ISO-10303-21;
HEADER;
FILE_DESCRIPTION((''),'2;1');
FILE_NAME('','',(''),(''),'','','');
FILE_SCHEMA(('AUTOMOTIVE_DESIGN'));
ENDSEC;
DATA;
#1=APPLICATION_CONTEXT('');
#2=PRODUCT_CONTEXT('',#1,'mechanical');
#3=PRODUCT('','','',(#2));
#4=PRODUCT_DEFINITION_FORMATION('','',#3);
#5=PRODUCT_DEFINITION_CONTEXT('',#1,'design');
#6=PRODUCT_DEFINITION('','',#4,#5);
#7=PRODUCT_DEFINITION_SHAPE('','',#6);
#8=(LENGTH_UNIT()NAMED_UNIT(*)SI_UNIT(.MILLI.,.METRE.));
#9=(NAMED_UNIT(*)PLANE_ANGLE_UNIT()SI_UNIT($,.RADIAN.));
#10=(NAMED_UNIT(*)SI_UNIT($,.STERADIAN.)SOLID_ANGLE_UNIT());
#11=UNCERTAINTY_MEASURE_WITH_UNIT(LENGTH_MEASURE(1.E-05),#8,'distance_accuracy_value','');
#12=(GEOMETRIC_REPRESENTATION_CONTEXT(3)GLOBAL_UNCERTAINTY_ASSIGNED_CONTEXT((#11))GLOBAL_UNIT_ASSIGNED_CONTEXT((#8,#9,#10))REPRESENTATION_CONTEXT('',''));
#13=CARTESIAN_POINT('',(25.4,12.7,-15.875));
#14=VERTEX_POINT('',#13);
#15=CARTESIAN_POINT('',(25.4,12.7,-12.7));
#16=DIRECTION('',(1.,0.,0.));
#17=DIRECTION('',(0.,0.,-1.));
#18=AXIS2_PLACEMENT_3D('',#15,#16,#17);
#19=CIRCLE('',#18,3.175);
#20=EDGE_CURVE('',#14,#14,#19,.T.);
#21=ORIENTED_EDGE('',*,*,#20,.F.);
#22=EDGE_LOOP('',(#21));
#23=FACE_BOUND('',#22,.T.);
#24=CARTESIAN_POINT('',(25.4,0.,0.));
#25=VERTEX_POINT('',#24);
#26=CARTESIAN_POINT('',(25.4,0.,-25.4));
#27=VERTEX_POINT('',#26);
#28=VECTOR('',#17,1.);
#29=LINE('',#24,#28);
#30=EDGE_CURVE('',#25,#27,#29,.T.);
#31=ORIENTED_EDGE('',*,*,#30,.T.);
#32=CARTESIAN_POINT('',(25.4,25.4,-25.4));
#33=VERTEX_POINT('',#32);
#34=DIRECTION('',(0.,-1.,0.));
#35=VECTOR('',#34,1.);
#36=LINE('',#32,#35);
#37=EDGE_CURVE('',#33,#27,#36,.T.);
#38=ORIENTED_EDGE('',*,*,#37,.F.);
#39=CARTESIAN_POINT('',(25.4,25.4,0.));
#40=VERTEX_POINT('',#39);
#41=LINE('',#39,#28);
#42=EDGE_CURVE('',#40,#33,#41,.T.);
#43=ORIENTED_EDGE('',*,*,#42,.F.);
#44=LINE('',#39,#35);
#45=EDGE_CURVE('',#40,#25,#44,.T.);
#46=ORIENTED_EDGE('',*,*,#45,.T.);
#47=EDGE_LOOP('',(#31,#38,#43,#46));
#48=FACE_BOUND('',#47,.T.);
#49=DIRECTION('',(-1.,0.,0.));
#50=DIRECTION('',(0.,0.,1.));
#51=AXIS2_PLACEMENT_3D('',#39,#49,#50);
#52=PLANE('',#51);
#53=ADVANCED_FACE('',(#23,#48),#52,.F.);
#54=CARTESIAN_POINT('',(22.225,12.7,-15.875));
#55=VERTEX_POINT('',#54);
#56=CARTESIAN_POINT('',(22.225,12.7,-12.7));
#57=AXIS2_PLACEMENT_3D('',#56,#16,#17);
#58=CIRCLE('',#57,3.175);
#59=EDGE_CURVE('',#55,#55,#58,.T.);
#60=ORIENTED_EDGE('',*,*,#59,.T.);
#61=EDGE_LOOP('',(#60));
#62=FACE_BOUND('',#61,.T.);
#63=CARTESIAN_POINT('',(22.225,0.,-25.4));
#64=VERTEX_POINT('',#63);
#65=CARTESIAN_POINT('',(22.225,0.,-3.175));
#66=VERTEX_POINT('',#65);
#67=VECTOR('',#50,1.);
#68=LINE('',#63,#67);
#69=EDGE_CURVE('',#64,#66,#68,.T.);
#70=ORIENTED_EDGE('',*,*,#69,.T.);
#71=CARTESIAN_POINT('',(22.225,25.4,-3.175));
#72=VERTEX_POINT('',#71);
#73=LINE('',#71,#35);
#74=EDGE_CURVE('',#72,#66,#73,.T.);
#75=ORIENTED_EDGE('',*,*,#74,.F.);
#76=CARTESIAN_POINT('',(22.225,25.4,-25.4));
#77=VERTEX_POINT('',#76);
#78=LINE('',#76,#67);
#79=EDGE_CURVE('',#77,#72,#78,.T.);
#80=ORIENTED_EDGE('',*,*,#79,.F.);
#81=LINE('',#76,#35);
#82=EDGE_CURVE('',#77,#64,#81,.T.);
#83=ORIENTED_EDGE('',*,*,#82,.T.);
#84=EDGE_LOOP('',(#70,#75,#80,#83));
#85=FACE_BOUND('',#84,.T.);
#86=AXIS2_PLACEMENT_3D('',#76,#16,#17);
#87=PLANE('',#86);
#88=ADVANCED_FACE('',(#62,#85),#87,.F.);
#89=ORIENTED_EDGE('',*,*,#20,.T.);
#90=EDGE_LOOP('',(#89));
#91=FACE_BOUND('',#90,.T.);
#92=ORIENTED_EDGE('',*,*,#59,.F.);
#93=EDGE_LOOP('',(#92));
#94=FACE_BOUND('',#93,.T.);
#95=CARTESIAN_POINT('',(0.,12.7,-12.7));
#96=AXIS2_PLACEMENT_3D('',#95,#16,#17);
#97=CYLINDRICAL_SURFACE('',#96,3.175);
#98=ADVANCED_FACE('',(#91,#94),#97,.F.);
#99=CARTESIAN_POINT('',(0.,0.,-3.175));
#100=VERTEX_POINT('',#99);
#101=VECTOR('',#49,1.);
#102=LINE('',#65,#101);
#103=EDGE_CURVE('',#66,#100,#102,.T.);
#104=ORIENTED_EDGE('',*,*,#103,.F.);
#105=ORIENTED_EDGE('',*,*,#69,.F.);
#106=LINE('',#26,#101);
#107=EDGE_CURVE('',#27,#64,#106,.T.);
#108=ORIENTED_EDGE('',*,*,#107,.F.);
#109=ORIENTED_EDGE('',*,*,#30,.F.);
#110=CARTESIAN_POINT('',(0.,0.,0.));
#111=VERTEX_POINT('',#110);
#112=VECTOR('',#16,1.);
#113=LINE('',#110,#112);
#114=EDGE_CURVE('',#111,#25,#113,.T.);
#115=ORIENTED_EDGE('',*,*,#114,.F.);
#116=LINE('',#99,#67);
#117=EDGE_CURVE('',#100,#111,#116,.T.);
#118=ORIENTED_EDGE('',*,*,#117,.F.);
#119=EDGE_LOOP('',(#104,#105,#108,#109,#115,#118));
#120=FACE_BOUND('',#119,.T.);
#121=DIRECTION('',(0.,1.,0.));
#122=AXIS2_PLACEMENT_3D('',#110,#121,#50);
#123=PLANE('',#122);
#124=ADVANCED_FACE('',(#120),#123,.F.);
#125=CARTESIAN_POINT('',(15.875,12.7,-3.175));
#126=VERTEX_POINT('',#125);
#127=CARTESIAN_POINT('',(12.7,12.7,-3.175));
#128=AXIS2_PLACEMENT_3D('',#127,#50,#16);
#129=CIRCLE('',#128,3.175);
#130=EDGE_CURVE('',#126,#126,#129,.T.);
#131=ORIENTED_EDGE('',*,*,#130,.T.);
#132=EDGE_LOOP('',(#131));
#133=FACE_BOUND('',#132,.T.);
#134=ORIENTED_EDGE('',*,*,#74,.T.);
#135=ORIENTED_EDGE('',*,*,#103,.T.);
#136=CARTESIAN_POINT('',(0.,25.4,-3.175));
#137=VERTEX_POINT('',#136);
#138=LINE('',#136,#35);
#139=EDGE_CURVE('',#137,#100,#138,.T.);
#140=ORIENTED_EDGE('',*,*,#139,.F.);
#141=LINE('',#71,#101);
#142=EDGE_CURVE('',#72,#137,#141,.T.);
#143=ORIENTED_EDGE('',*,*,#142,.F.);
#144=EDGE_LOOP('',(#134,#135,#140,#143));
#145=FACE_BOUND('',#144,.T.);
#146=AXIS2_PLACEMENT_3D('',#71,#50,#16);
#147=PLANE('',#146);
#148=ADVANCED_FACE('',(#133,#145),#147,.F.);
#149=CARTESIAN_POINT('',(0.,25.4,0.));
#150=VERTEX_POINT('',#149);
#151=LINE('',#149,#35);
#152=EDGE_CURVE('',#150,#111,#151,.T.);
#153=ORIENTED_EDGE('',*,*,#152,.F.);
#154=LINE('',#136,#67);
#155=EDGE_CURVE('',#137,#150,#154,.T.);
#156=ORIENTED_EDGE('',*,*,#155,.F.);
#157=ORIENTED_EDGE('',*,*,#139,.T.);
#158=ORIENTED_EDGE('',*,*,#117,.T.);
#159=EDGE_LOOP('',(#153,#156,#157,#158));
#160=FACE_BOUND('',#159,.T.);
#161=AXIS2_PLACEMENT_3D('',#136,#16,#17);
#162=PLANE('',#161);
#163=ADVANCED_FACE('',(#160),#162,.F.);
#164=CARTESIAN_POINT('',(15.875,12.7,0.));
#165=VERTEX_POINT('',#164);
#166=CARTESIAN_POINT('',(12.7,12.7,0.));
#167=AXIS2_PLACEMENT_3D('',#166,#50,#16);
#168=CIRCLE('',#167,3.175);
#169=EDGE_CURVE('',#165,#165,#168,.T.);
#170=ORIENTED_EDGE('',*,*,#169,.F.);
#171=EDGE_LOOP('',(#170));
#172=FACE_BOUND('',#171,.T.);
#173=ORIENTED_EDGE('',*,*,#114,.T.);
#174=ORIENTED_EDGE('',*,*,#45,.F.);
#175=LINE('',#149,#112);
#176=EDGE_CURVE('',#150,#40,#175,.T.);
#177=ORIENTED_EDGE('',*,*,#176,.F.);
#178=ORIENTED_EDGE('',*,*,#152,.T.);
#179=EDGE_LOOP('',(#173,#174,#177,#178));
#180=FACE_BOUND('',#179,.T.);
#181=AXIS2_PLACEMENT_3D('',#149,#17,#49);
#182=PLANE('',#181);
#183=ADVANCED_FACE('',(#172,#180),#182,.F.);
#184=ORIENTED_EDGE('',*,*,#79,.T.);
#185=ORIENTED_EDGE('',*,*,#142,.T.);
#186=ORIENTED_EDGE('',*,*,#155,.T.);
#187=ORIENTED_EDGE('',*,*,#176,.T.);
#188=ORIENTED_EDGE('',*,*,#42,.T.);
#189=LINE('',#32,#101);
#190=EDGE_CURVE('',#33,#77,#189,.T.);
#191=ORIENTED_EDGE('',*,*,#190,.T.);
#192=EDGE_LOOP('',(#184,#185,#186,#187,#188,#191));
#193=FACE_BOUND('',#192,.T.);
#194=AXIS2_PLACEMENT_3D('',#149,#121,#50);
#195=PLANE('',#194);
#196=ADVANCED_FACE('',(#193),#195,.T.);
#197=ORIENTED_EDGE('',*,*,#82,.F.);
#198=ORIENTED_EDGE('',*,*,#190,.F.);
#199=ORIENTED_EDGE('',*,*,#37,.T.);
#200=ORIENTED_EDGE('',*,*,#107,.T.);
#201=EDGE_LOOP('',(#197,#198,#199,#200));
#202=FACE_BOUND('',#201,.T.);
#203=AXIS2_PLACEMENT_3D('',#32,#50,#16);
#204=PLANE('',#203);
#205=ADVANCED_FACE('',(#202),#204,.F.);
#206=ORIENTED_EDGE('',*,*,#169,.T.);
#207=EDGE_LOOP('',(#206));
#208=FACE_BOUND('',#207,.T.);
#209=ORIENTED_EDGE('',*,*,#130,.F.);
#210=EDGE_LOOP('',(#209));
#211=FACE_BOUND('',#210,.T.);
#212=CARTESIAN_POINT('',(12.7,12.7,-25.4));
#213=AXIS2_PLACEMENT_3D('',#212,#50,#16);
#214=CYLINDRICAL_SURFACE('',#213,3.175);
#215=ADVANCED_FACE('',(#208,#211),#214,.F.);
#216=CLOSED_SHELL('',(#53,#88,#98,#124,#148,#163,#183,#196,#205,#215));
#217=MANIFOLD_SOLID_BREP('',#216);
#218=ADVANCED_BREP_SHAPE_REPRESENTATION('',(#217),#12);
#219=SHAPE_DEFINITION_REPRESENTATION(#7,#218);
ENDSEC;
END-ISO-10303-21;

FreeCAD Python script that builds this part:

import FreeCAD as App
import Part
import Sketcher
Q = App.Units.Quantity

doc = App.newDocument("Part")
body = doc.addObject("PartDesign::Body", "Body")

# Sketch on XZ plane
sketch1 = body.newObject("Sketcher::SketchObject", "Sketch")
sketch1.AttachmentSupport = (doc.getObject("XZ_Plane"), [""])
sketch1.MapMode = "FlatFace"
sketch1.addGeometry([
    Part.LineSegment(App.Vector(0, 0, 0), App.Vector(25.4, 0, 0)),  # 0
    Part.LineSegment(App.Vector(25.4, 0, 0), App.Vector(25.4, -25.4, 0)),  # 1
    Part.LineSegment(App.Vector(25.4, -25.4, 0), App.Vector(22.2, -25.4, 0)),  # 2
    Part.LineSegment(App.Vector(22.2, -25.4, 0), App.Vector(22.2, -3.2, 0)),  # 3
    Part.LineSegment(App.Vector(22.2, -3.2, 0), App.Vector(0, -3.2, 0)),  # 4
    Part.LineSegment(App.Vector(0, -3.2, 0), App.Vector(0, 0, 0)),  # 5
], False)
sketch1.addConstraint([
    Sketcher.Constraint("Coincident", 0, 2, 1, 1),
    Sketcher.Constraint("Coincident", 1, 2, 2, 1),
    Sketcher.Constraint("Coincident", 2, 2, 3, 1),
    Sketcher.Constraint("Coincident", 3, 2, 4, 1),
    Sketcher.Constraint("Coincident", 4, 2, 5, 1),
    Sketcher.Constraint("Coincident", 5, 2, 0, 1),
    Sketcher.Constraint("Horizontal", 0),
    Sketcher.Constraint("Vertical", 1),
    Sketcher.Constraint("Horizontal", 2),
    Sketcher.Constraint("Vertical", 3),
    Sketcher.Constraint("Horizontal", 4),
    Sketcher.Constraint("Vertical", 5),
    Sketcher.Constraint("Coincident", 5, 2, -1, 1),
    Sketcher.Constraint("Equal", 0, 1),
    Sketcher.Constraint("Equal", 4, 3),
    Sketcher.Constraint("DistanceX", 0, 1, 0, 2, Q("1 in")),
    Sketcher.Constraint("DistanceX", 2, 2, 2, 1, Q("0.125 in")),
])
pad1 = body.newObject("PartDesign::Pad", "Pad")
pad1.Profile = sketch1
pad1.Length = Q("1 in")
pad1.Reversed = True

# Sketch on YZ plane
sketch2 = body.newObject("Sketcher::SketchObject", "Sketch001")
sketch2.AttachmentSupport = (doc.getObject("YZ_Plane"), [""])
sketch2.MapMode = "FlatFace"
sketch2.AttachmentOffset = App.Placement(App.Vector(0, 0, 1 * 25.4), App.Rotation())
sketch2.addGeometry(Part.Circle(App.Vector(12.7, -12.7, 0), App.Vector(0, 0, 1), 3.2), False)
sketch2.addConstraint([
    Sketcher.Constraint("Diameter", 0, Q("0.25 in")),
    Sketcher.Constraint("DistanceX", -1, 1, 0, 3, Q("0.5 in")),
    Sketcher.Constraint("DistanceY", 0, 3, -1, 1, Q("0.5 in")),
])
pocket1 = body.newObject("PartDesign::Pocket", "Pocket")
pocket1.Profile = sketch2
pocket1.Length = Q("1 in")

# Sketch on XY plane
sketch3 = body.newObject("Sketcher::SketchObject", "Sketch002")
sketch3.AttachmentSupport = (doc.getObject("XY_Plane"), [""])
sketch3.MapMode = "FlatFace"
sketch3.addGeometry(Part.Circle(App.Vector(12.7, 12.7, 0), App.Vector(0, 0, 1), 3.2), False)
sketch3.addConstraint([
    Sketcher.Constraint("Diameter", 0, Q("0.25 in")),
    Sketcher.Constraint("DistanceX", -1, 1, 0, 3, Q("0.5 in")),
    Sketcher.Constraint("DistanceY", -1, 1, 0, 3, Q("0.5 in")),
])
pocket2 = body.newObject("PartDesign::Pocket", "Pocket001")
pocket2.Profile = sketch3
pocket2.Length = Q("1 in")

doc.recompute()
